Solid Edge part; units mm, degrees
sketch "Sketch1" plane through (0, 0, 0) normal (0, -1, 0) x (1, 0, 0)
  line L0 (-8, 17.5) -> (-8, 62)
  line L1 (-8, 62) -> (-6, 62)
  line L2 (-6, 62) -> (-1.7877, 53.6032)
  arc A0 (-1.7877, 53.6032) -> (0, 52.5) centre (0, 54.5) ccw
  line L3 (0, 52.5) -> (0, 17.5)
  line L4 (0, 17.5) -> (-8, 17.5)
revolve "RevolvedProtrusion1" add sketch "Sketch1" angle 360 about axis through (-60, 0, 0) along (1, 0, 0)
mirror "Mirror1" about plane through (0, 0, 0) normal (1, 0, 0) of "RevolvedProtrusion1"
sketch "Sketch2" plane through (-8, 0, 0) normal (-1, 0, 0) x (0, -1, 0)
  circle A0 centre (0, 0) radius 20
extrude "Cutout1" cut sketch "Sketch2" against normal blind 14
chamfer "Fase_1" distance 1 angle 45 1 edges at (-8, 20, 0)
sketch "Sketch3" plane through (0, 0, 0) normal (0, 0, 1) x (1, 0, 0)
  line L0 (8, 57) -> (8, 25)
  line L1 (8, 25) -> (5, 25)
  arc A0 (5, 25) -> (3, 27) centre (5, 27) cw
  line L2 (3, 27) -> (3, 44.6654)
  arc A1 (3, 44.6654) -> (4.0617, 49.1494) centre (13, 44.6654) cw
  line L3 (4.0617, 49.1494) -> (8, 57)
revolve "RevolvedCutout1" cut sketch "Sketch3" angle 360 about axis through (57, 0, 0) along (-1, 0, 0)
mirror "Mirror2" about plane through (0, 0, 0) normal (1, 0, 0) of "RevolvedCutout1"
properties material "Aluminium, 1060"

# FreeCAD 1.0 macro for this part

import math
import FreeCAD as App
import Part
import Sketcher
Q = App.Units.Quantity


def edges_at(feature, points):
    """Names of the edges that pass closest to the given points."""
    edges = feature.Shape.Edges
    near = lambda p: min(range(len(edges)), key=lambda i: edges[i].distToShape(Part.Vertex(*p))[0])
    return sorted({f"Edge{near(p) + 1}" for p in points})

doc = App.newDocument("Part")
body = doc.addObject("PartDesign::Body", "Body")

sketch1 = body.newObject("Sketcher::SketchObject", "Sketch")
sketch1.AttachmentSupport = (doc.getObject("XZ_Plane"), [""])
sketch1.MapMode = "FlatFace"
sketch1.addGeometry(Part.LineSegment(App.Vector(-8, 62, 0), App.Vector(-8, 17.5, 0)), False)
sketch1.addGeometry(Part.LineSegment(App.Vector(-8, 17.5, 0), App.Vector(0, 17.5, 0)), False)
sketch1.addGeometry(Part.LineSegment(App.Vector(0, 17.5, 0), App.Vector(0, 52.5, 0)), False)
sketch1.addGeometry(Part.ArcOfCircle(Part.Circle(App.Vector(0, 54.5, 0), App.Vector(0, 0, 1), 2), math.radians(-153), math.radians(-90)), False)
sketch1.addGeometry(Part.LineSegment(App.Vector(-1.8, 53.6, 0), App.Vector(-6, 62, 0)), False)
sketch1.addGeometry(Part.LineSegment(App.Vector(-6, 62, 0), App.Vector(-8, 62, 0)), False)
sketch1.addConstraint(Sketcher.Constraint("Coincident", 0, 2, 1, 1))
sketch1.addConstraint(Sketcher.Constraint("Coincident", 1, 2, 2, 1))
sketch1.addConstraint(Sketcher.Constraint("Coincident", 2, 2, 3, 2))
sketch1.addConstraint(Sketcher.Constraint("Tangent", 3, 1, 4, 1))
sketch1.addConstraint(Sketcher.Constraint("Coincident", 4, 2, 5, 1))
sketch1.addConstraint(Sketcher.Constraint("Coincident", 5, 2, 0, 1))
sketch1.addConstraint(Sketcher.Constraint("Vertical", 0))
sketch1.addConstraint(Sketcher.Constraint("Horizontal", 1))
sketch1.addConstraint(Sketcher.Constraint("Vertical", 2))
sketch1.addConstraint(Sketcher.Constraint("Horizontal", 5))
sketch1.addConstraint(Sketcher.Constraint("PointOnObject", 3, 3, -2))
sketch1.addConstraint(Sketcher.Constraint("PointOnObject", 1, 2, -2))
sketch1.addConstraint(Sketcher.Constraint("Radius", 3, 2.0))
sketch1.addConstraint(Sketcher.Constraint("DistanceX", 1, 1, 1, 2, 8.0))
sketch1.addConstraint(Sketcher.Constraint("DistanceX", 5, 2, 5, 1, 2.0))
sketch1.addConstraint(Sketcher.Constraint("DistanceY", 2, 1, 2, 2, 35.0))
sketch1.addConstraint(Sketcher.Constraint("DistanceY", 0, 2, 0, 1, 44.5))
sketch1.addConstraint(Sketcher.Constraint("DistanceY", -1, 1, 4, 2, 62.0))
revolution = body.newObject("PartDesign::Revolution", "Revolution")
revolution.Profile = sketch1
revolution.ReferenceAxis = (sketch1, ["H_Axis"])
revolution.Angle = 360
doc.recompute()

mirrored = body.newObject("PartDesign::Mirrored", "Mirrored")
mirrored.Originals = [revolution]
mirrored.MirrorPlane = (doc.getObject("YZ_Plane"), [""])
body.Tip = mirrored

sketch2 = body.newObject("Sketcher::SketchObject", "Sketch001")
sketch2.AttachmentSupport = (doc.getObject("YZ_Plane"), [""])
sketch2.MapMode = "FlatFace"
sketch2.AttachmentOffset = App.Placement(App.Vector(0, 0, -8), App.Rotation())
sketch2.addGeometry(Part.Circle(App.Vector(0, 0, 0), App.Vector(0, 0, 1), 20), False)
sketch2.addConstraint(Sketcher.Constraint("Coincident", 0, 3, -1, 1))
sketch2.addConstraint(Sketcher.Constraint("Diameter", 0, 40.0))
pocket1 = body.newObject("PartDesign::Pocket", "Pocket")
pocket1.Profile = sketch2
pocket1.Length = 14
pocket1.Reversed = True
doc.recompute()

chamfer = body.newObject("PartDesign::Chamfer", "Chamfer")
chamfer.Base = (pocket1, edges_at(pocket1, [(-8, 20, 0)]))
chamfer.Size = 1

sketch3 = body.newObject("Sketcher::SketchObject", "Sketch002")
sketch3.AttachmentSupport = (doc.getObject("XY_Plane"), [""])
sketch3.MapMode = "FlatFace"
sketch3.addGeometry(Part.LineSegment(App.Vector(8, 25, 0), App.Vector(8, 57, 0)), False)
sketch3.addGeometry(Part.LineSegment(App.Vector(8, 57, 0), App.Vector(4.1, 49.1, 0)), False)
sketch3.addGeometry(Part.ArcOfCircle(Part.Circle(App.Vector(13, 44.7, 0), App.Vector(0, 0, 1), 10), math.radians(153), math.radians(180)), False)
sketch3.addGeometry(Part.LineSegment(App.Vector(3, 44.7, 0), App.Vector(3, 27, 0)), False)
sketch3.addGeometry(Part.ArcOfCircle(Part.Circle(App.Vector(5, 27, 0), App.Vector(0, 0, 1), 2), math.radians(180), math.radians(270)), False)
sketch3.addGeometry(Part.LineSegment(App.Vector(5, 25, 0), App.Vector(8, 25, 0)), False)
sketch3.addConstraint(Sketcher.Constraint("Coincident", 0, 2, 1, 1))
sketch3.addConstraint(Sketcher.Constraint("Tangent", 1, 2, 2, 1))
sketch3.addConstraint(Sketcher.Constraint("Tangent", 2, 2, 3, 1))
sketch3.addConstraint(Sketcher.Constraint("Tangent", 3, 2, 4, 1))
sketch3.addConstraint(Sketcher.Constraint("Tangent", 4, 2, 5, 1))
sketch3.addConstraint(Sketcher.Constraint("Coincident", 5, 2, 0, 1))
sketch3.addConstraint(Sketcher.Constraint("Vertical", 0))
sketch3.addConstraint(Sketcher.Constraint("Vertical", 3))
sketch3.addConstraint(Sketcher.Constraint("Horizontal", 5))
sketch3.addConstraint(Sketcher.Constraint("Radius", 2, 10.0))
sketch3.addConstraint(Sketcher.Constraint("Radius", 4, 2.0))
sketch3.addConstraint(Sketcher.Constraint("DistanceX", 5, 1, 5, 2, 3.0))
sketch3.addConstraint(Sketcher.Constraint("DistanceY", 0, 1, 0, 2, 32.0))
sketch3.addConstraint(Sketcher.Constraint("DistanceX", -1, 1, 2, 3, 13.0))
sketch3.addConstraint(Sketcher.Constraint("DistanceY", -1, 1, 4, 3, 27.0))
sketch3.addConstraint(Sketcher.Constraint("Angle", 1, Q("-116.641 deg")))
groove = body.newObject("PartDesign::Groove", "Groove")
groove.Profile = sketch3
groove.ReferenceAxis = (sketch3, ["H_Axis"])
groove.Angle = 360
doc.recompute()

mirrored2 = body.newObject("PartDesign::Mirrored", "Mirrored001")
mirrored2.Originals = [groove]
mirrored2.MirrorPlane = (doc.getObject("YZ_Plane"), [""])
body.Tip = mirrored2

doc.recompute()
